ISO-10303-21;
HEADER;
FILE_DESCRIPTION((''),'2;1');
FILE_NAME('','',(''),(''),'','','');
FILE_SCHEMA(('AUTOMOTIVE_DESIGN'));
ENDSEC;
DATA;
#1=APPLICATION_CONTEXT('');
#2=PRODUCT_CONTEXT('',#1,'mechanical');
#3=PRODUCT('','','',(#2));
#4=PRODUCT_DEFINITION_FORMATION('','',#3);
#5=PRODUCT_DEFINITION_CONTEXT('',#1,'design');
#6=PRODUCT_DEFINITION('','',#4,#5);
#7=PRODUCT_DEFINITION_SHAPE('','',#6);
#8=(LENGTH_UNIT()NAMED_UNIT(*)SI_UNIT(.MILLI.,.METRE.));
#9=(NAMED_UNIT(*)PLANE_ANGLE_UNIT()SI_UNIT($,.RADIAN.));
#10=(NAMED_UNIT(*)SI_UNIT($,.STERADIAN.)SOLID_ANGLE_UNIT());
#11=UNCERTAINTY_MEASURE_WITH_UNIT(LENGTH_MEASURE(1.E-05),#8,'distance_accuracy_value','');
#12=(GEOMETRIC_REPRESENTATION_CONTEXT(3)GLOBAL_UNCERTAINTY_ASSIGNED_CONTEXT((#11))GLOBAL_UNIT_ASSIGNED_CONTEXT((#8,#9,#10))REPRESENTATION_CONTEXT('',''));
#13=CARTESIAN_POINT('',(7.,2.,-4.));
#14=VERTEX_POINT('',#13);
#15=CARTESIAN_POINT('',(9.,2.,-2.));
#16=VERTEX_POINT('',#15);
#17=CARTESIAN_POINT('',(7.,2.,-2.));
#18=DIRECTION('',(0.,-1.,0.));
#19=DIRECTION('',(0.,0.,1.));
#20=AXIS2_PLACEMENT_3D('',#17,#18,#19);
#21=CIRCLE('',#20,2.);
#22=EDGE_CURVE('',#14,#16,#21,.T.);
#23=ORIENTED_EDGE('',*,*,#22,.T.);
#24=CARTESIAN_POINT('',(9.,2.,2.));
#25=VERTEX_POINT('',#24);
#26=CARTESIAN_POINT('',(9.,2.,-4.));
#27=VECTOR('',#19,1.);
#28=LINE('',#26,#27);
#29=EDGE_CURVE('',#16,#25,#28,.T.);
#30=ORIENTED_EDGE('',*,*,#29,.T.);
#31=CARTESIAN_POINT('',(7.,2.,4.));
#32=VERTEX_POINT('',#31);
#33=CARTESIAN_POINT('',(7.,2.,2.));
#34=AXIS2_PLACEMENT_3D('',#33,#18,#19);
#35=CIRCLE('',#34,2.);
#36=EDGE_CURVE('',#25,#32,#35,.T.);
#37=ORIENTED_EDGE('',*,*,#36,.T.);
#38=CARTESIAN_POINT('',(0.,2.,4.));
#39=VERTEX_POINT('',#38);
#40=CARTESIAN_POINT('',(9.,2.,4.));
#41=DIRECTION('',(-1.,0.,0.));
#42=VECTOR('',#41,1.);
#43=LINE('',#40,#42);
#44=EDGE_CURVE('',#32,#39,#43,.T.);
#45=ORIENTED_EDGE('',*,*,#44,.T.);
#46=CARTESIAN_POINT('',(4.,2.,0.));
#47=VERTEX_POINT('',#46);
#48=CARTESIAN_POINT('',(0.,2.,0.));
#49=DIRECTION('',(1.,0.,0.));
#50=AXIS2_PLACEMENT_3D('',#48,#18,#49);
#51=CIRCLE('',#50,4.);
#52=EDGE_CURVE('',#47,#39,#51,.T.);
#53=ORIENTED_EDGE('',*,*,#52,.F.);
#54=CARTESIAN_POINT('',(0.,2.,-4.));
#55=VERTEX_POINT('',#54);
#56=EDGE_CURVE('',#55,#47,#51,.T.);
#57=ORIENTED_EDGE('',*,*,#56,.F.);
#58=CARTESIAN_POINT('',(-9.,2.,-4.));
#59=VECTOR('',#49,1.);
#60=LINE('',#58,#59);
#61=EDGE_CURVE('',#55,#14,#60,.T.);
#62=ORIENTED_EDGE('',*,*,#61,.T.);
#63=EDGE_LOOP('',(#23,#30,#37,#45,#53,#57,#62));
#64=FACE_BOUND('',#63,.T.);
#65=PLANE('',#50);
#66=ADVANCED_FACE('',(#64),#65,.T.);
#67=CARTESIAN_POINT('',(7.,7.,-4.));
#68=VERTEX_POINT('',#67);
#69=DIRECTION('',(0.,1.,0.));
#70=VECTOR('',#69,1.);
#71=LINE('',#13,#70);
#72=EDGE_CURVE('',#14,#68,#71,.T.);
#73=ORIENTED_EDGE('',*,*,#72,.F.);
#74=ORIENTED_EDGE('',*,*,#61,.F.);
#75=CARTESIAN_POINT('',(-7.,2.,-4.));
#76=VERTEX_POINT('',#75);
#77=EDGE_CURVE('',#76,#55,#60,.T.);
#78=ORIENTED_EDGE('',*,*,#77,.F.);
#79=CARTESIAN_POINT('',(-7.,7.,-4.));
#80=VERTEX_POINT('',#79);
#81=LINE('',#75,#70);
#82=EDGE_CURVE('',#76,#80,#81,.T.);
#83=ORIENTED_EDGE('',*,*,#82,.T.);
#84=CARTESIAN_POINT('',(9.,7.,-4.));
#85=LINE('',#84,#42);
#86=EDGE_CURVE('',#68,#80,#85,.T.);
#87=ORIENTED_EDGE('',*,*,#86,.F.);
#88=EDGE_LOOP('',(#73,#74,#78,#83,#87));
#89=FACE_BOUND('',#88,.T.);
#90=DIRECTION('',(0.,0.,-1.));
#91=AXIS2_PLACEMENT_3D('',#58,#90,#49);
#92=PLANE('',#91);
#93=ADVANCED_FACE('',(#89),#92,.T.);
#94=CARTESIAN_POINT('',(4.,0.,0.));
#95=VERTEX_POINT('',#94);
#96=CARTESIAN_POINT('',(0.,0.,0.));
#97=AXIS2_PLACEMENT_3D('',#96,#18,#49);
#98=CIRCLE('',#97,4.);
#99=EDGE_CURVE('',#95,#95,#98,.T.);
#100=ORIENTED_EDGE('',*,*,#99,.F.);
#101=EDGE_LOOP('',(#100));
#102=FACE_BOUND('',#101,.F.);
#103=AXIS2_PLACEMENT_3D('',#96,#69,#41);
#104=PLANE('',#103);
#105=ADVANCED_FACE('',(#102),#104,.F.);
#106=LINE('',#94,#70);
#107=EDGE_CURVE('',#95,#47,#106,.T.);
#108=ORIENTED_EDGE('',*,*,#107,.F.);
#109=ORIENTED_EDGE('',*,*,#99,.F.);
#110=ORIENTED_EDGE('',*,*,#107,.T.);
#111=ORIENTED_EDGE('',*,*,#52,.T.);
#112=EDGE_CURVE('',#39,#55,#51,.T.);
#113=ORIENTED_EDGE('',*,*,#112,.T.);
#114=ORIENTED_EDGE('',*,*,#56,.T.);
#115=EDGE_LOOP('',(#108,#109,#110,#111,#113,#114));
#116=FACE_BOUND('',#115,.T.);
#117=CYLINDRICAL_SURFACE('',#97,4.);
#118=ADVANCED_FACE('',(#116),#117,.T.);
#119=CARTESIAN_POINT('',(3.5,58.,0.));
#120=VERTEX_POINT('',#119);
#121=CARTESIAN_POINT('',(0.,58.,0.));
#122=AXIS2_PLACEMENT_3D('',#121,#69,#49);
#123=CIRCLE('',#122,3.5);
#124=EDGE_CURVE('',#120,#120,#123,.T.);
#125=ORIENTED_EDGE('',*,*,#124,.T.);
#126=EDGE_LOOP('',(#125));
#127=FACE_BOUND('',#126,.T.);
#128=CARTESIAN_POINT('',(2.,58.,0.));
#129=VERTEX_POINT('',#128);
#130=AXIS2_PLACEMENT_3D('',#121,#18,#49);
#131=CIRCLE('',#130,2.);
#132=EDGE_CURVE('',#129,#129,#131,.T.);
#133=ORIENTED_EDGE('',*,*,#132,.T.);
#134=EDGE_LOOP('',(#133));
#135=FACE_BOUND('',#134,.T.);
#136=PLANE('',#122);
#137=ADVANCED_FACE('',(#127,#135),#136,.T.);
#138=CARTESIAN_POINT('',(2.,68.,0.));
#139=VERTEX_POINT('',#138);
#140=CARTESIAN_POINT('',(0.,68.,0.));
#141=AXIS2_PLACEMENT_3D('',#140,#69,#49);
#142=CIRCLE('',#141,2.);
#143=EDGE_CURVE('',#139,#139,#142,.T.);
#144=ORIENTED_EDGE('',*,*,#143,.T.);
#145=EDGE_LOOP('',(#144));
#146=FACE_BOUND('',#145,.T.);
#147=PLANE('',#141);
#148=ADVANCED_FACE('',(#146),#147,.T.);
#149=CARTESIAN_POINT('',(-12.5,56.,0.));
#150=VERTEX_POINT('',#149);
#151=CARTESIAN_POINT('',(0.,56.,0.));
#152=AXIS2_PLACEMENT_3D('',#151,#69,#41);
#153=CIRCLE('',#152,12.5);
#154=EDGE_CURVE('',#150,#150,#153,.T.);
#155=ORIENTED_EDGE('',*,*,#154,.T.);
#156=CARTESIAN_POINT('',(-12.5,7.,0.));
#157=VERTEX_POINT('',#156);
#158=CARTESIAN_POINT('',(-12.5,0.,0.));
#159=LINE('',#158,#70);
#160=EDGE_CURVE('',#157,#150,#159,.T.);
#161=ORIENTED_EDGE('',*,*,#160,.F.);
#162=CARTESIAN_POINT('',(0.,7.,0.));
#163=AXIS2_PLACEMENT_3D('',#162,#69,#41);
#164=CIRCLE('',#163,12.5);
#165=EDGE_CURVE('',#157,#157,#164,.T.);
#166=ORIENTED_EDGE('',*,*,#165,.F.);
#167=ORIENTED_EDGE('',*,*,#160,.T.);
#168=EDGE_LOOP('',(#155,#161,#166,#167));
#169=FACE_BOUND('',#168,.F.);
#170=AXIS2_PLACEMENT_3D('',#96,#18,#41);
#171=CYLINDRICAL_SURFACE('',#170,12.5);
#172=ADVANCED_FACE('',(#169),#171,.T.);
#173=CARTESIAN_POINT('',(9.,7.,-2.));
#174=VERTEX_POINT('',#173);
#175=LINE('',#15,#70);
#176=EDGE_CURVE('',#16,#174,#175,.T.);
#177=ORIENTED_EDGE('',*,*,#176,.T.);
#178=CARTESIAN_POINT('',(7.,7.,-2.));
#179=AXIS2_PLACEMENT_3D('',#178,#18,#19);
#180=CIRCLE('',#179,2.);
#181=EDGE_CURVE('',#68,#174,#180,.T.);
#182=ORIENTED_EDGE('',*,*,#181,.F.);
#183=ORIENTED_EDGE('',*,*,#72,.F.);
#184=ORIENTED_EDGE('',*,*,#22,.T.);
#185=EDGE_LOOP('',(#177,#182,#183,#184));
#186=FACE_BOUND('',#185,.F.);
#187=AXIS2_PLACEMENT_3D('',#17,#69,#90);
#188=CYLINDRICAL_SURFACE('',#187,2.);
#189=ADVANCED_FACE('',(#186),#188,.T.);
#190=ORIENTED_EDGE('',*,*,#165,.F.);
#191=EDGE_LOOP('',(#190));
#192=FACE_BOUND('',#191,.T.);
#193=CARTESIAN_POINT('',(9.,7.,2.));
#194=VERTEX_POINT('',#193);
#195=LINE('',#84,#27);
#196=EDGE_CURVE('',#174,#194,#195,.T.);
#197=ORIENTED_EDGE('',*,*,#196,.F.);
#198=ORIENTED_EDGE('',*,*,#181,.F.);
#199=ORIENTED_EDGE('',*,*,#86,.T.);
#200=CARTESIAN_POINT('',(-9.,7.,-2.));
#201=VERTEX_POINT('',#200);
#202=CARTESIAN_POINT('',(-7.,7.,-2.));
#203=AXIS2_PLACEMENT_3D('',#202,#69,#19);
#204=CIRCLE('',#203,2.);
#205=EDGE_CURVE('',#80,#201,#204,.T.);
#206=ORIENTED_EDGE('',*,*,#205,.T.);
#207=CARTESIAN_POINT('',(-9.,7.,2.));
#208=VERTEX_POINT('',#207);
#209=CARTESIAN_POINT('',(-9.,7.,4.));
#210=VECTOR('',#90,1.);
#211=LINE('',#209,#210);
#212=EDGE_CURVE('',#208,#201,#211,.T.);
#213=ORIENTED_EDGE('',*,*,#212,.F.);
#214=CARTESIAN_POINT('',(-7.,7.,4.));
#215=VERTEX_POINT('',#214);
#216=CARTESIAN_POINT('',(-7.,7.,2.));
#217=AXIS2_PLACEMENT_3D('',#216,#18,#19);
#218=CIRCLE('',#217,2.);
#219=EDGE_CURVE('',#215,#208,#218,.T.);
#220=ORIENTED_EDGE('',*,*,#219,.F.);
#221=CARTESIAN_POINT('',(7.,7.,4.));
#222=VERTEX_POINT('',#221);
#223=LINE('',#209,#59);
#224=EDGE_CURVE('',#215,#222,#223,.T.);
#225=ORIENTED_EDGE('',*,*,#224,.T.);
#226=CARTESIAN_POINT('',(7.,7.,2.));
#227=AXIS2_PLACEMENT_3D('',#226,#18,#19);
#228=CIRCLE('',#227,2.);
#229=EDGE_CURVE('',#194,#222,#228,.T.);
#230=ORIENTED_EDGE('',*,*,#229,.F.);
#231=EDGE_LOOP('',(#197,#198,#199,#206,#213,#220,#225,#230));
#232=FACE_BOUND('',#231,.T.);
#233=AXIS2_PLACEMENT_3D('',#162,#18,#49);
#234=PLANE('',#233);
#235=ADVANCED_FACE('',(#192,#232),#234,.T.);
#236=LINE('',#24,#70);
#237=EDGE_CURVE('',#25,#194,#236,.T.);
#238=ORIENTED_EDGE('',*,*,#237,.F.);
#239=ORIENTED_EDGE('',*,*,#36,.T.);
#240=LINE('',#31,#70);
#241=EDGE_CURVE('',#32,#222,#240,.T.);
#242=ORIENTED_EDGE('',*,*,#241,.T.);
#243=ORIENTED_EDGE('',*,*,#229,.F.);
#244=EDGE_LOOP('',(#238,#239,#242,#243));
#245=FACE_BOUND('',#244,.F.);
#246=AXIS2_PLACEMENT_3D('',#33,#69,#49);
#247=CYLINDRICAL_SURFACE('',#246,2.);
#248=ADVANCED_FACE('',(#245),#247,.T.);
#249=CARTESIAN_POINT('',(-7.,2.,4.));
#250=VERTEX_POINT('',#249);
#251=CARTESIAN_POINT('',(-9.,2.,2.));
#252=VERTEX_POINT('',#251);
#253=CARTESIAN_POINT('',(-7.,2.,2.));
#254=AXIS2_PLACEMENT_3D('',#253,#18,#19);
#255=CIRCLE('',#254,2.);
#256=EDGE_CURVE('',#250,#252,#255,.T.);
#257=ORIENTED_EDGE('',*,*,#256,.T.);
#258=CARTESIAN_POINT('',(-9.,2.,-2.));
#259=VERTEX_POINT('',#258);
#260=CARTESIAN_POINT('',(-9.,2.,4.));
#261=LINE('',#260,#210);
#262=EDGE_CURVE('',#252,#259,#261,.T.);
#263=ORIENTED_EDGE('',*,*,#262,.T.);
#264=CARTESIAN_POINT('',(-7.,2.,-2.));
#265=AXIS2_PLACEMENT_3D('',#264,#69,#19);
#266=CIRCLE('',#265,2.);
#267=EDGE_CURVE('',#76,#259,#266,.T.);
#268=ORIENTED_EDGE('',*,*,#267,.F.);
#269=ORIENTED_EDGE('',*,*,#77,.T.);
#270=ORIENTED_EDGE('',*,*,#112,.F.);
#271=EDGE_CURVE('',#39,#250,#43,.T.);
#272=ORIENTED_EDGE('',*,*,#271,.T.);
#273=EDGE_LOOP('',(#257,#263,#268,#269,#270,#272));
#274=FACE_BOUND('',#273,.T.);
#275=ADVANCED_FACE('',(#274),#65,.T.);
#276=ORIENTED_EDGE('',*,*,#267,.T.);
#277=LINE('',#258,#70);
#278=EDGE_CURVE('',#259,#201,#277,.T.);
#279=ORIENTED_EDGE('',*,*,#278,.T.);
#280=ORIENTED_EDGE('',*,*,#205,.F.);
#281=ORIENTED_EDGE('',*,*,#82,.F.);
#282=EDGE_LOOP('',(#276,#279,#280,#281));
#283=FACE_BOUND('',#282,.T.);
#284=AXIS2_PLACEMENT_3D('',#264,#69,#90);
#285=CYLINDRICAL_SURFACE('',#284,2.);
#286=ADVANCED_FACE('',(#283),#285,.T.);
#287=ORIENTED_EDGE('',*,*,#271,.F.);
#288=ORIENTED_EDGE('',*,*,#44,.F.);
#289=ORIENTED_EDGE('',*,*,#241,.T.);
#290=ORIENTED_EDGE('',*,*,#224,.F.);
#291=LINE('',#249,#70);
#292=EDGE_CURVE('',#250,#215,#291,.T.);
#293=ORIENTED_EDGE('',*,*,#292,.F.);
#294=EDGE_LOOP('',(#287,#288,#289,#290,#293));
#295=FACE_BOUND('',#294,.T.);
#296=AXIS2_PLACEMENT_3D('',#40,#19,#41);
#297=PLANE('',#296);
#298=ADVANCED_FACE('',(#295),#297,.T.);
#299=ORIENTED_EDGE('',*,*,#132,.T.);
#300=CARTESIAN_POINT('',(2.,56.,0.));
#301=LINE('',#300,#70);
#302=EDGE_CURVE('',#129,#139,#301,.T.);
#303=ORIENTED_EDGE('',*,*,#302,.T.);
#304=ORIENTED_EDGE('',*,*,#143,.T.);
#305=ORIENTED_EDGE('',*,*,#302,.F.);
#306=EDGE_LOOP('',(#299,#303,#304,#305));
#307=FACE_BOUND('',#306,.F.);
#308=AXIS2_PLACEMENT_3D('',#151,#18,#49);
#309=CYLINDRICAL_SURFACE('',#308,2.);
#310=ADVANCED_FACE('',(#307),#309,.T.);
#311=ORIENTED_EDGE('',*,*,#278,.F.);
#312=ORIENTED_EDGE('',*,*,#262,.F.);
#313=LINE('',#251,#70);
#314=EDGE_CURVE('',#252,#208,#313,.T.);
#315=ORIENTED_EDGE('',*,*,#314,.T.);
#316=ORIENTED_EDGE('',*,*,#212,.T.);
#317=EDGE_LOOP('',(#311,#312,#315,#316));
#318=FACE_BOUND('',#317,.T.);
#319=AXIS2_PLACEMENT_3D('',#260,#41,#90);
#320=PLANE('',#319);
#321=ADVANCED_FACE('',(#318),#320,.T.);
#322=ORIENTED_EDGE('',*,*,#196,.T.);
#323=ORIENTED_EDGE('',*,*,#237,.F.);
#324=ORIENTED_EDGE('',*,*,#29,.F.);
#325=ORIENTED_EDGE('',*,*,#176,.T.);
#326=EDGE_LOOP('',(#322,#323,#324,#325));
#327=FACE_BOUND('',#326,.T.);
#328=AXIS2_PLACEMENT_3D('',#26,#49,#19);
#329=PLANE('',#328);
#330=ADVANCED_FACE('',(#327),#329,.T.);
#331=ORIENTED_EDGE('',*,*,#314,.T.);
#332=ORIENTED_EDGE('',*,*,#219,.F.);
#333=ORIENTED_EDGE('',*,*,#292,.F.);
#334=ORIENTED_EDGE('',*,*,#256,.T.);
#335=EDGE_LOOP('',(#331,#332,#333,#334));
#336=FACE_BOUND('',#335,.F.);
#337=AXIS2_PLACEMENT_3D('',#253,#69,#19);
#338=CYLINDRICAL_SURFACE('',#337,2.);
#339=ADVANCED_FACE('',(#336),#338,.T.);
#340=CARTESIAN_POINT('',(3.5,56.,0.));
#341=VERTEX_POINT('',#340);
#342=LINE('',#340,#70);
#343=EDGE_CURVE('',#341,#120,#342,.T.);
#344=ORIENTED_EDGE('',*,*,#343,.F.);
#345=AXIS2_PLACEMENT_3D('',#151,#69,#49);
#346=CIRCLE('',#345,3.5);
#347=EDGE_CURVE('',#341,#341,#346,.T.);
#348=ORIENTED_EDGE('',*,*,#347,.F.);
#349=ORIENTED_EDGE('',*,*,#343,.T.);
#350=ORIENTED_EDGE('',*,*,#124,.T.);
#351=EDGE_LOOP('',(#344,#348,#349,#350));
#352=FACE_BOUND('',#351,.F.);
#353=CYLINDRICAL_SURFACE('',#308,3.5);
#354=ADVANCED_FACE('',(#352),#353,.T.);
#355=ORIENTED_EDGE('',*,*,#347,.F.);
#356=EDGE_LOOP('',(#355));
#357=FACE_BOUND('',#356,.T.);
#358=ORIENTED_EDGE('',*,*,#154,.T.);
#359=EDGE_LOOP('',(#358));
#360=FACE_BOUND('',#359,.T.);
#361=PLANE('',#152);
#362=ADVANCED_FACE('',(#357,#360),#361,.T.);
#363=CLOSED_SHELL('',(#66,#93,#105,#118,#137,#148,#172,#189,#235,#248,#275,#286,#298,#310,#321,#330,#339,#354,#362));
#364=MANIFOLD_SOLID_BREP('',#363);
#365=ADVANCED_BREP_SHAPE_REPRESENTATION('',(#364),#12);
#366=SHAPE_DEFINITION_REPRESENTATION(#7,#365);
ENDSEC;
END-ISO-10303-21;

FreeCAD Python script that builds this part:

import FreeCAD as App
import Part
import Sketcher

V = App.Vector


def edges_at(feature, points):
    """Names of the edges that pass closest to the given points."""
    edges = feature.Shape.Edges
    near = lambda p: min(range(len(edges)), key=lambda i: edges[i].distToShape(Part.Vertex(*p))[0])
    return sorted({f"Edge{near(p) + 1}" for p in points})

doc = App.newDocument("Part")
body = doc.addObject("PartDesign::Body", "Body")

# Sketch on XZ plane
sketch1 = body.newObject("Sketcher::SketchObject", "Sketch")
sketch1.AttachmentSupport = (doc.getObject("XZ_Plane"), [""])
sketch1.MapMode = "FlatFace"
sketch1.addGeometry(Part.Circle(V(0, 0, 0), V(0, 0, 1), 12), False)
sketch1.addConstraint([
    Sketcher.Constraint("Coincident", 0, 3, -1, 1),
    Sketcher.Constraint("Diameter", 0, 25.0),
])
pad1 = body.newObject("PartDesign::Pad", "Pad")
pad1.Profile = sketch1
pad1.Length = 56
pad1.Reversed = True

# Sketch on XZ plane
sketch2 = body.newObject("Sketcher::SketchObject", "Sketch001")
sketch2.AttachmentSupport = (doc.getObject("XZ_Plane"), [""])
sketch2.MapMode = "FlatFace"
sketch2.AttachmentOffset = App.Placement(V(0, 0, -56), App.Rotation())
sketch2.addGeometry(Part.Circle(V(0, 0, 0), V(0, 0, 1), 2), False)
sketch2.addConstraint([
    Sketcher.Constraint("Coincident", 0, 3, -1, 1),
    Sketcher.Constraint("Diameter", 0, 4.0),
])
pad2 = body.newObject("PartDesign::Pad", "Pad001")
pad2.Profile = sketch2
pad2.Length = 12
pad2.Reversed = True

# Sketch on XZ plane
sketch3 = body.newObject("Sketcher::SketchObject", "Sketch002")
sketch3.AttachmentSupport = (doc.getObject("XZ_Plane"), [""])
sketch3.MapMode = "FlatFace"
sketch3.AttachmentOffset = App.Placement(V(0, 0, -56), App.Rotation())
sketch3.addGeometry(Part.Circle(V(0, 0, 0), V(0, 0, 1), 3.5), False)
sketch3.addConstraint([
    Sketcher.Constraint("Coincident", 0, 3, -1, 1),
    Sketcher.Constraint("Diameter", 0, 7.0),
])
pad3 = body.newObject("PartDesign::Pad", "Pad002")
pad3.Profile = sketch3
pad3.Length = 2
pad3.Reversed = True

# Sketch on XZ plane
sketch4 = body.newObject("Sketcher::SketchObject", "Sketch003")
sketch4.AttachmentSupport = (doc.getObject("XZ_Plane"), [""])
sketch4.MapMode = "FlatFace"
sketch4.addGeometry([
    Part.Circle(V(0, 0, 0), V(0, 0, 1), 12.5),
    Part.Circle(V(0, 0, 0), V(0, 0, 1), 4),
], False)
sketch4.addConstraint([
    Sketcher.Constraint("Coincident", 0, 3, -1, 1),
    Sketcher.Constraint("Coincident", 1, 3, -1, 1),
    Sketcher.Constraint("Diameter", 1, 8.0),
    Sketcher.Constraint("Diameter", 0, 25.0),
])
pocket1 = body.newObject("PartDesign::Pocket", "Pocket")
pocket1.Profile = sketch4
pocket1.Length = 2

# Sketch on XZ plane
sketch5 = body.newObject("Sketcher::SketchObject", "Sketch004")
sketch5.AttachmentSupport = (doc.getObject("XZ_Plane"), [""])
sketch5.MapMode = "FlatFace"
sketch5.AttachmentOffset = App.Placement(V(0, 0, -2), App.Rotation())
sketch5.addGeometry([
    Part.Circle(V(0, 0, 0), V(0, 0, 1), 12),  # 0
    Part.LineSegment(V(9, -4, 0), V(-9, -4, 0)),  # 1
    Part.LineSegment(V(-9, -4, 0), V(-9, 4, 0)),  # 2
    Part.LineSegment(V(-9, 4, 0), V(9, 4, 0)),  # 3
    Part.LineSegment(V(9, 4, 0), V(9, -4, 0)),  # 4
], False)
sketch5.addConstraint([
    Sketcher.Constraint("Coincident", 1, 2, 2, 1),
    Sketcher.Constraint("Coincident", 2, 2, 3, 1),
    Sketcher.Constraint("Coincident", 3, 2, 4, 1),
    Sketcher.Constraint("Coincident", 4, 2, 1, 1),
    Sketcher.Constraint("Horizontal", 1),
    Sketcher.Constraint("Vertical", 2),
    Sketcher.Constraint("Horizontal", 3),
    Sketcher.Constraint("Vertical", 4),
    Sketcher.Constraint("Coincident", 0, 3, -1, 1),
    Sketcher.Constraint("Symmetric", 1, 2, 3, 2, -1, 1),
    Sketcher.Constraint("DistanceX", 1, 2, 1, 1, 18.0),
    Sketcher.Constraint("Diameter", 0, 25.0),
    Sketcher.Constraint("DistanceY", 2, 1, 2, 2, 8.0),
])
pocket2 = body.newObject("PartDesign::Pocket", "Pocket001")
pocket2.Profile = sketch5
pocket2.Length = 5
doc.recompute()

fillet = body.newObject("PartDesign::Fillet", "Fillet")
fillet.Base = (pocket2, edges_at(pocket2, [
    (-9, 4.5, 4),
    (-9, 4.5, -4),
    (9, 4.5, 4),
    (9, 4.5, -4),
]))
fillet.Radius = 2

doc.recompute()
